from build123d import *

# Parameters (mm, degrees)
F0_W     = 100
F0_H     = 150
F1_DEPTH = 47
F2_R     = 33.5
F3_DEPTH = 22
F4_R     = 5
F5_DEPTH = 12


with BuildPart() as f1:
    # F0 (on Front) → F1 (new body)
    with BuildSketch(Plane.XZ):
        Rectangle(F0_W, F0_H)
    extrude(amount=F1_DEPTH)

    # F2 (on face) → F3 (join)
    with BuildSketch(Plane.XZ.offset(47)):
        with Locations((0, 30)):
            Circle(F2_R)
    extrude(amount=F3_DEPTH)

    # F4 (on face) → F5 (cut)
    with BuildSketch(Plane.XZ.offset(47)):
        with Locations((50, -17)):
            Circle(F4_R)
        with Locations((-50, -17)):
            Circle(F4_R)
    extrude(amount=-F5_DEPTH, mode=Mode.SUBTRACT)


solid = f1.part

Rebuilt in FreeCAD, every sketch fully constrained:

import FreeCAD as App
import Part
import Sketcher
Q = App.Units.Quantity

doc = App.newDocument("Part")
body = doc.addObject("PartDesign::Body", "Body")

sketch1 = doc.addObject("Sketcher::SketchObject", "Sketch")
body.addObject(sketch1)
sketch1.AttachmentSupport = (doc.XZ_Plane, [""])
sketch1.MapMode = "FlatFace"
sketch1.addGeometry(Part.LineSegment(App.Vector(-50, 75, 0), App.Vector(-50, -75, 0)), False)
sketch1.addGeometry(Part.LineSegment(App.Vector(-50, -75, 0), App.Vector(50, -75, 0)), False)
sketch1.addGeometry(Part.LineSegment(App.Vector(50, -75, 0), App.Vector(50, 75, 0)), False)
sketch1.addGeometry(Part.LineSegment(App.Vector(50, 75, 0), App.Vector(-50, 75, 0)), False)
sketch1.addConstraint(Sketcher.Constraint("Coincident", 0, 2, 1, 1))
sketch1.addConstraint(Sketcher.Constraint("Coincident", 1, 2, 2, 1))
sketch1.addConstraint(Sketcher.Constraint("Coincident", 2, 2, 3, 1))
sketch1.addConstraint(Sketcher.Constraint("Coincident", 3, 2, 0, 1))
sketch1.addConstraint(Sketcher.Constraint("Vertical", 0))
sketch1.addConstraint(Sketcher.Constraint("Horizontal", 1))
sketch1.addConstraint(Sketcher.Constraint("Vertical", 2))
sketch1.addConstraint(Sketcher.Constraint("Horizontal", 3))
sketch1.addConstraint(Sketcher.Constraint("Symmetric", 0, 2, 2, 2, -1, 1))
sketch1.addConstraint(Sketcher.Constraint("DistanceX", 1, 1, 1, 2, Q("100 mm")))
sketch1.addConstraint(Sketcher.Constraint("DistanceY", 0, 2, 0, 1, Q("150 mm")))
pad1 = doc.addObject("PartDesign::Pad", "Pad")
body.addObject(pad1)
pad1.Profile = sketch1
pad1.Length = 47

sketch2 = doc.addObject("Sketcher::SketchObject", "Sketch001")
body.addObject(sketch2)
sketch2.AttachmentSupport = (doc.XZ_Plane, [""])
sketch2.MapMode = "FlatFace"
sketch2.AttachmentOffset = App.Placement(App.Vector(0, 0, 47), App.Rotation())
sketch2.addGeometry(Part.Circle(App.Vector(0, 30, 0), App.Vector(0, 0, 1), 34), False)
sketch2.addConstraint(Sketcher.Constraint("PointOnObject", 0, 3, -2))
sketch2.addConstraint(Sketcher.Constraint("Diameter", 0, Q("67 mm")))
sketch2.addConstraint(Sketcher.Constraint("DistanceY", -1, 1, 0, 3, Q("30 mm")))
pad2 = doc.addObject("PartDesign::Pad", "Pad001")
body.addObject(pad2)
pad2.Profile = sketch2
pad2.Length = 22

sketch3 = doc.addObject("Sketcher::SketchObject", "Sketch002")
body.addObject(sketch3)
sketch3.AttachmentSupport = (doc.XZ_Plane, [""])
sketch3.MapMode = "FlatFace"
sketch3.AttachmentOffset = App.Placement(App.Vector(0, 0, 47), App.Rotation())
sketch3.addGeometry(Part.Circle(App.Vector(50, -17, 0), App.Vector(0, 0, 1), 5), False)
sketch3.addGeometry(Part.Circle(App.Vector(-50, -17, 0), App.Vector(0, 0, 1), 5), False)
sketch3.addConstraint(Sketcher.Constraint("Equal", 0, 1))
sketch3.addConstraint(Sketcher.Constraint("Symmetric", 0, 3, 1, 3, -2))
sketch3.addConstraint(Sketcher.Constraint("Diameter", 0, Q("10 mm")))
sketch3.addConstraint(Sketcher.Constraint("DistanceX", -1, 1, 0, 3, Q("50 mm")))
sketch3.addConstraint(Sketcher.Constraint("DistanceY", 0, 3, -1, 1, Q("17 mm")))
pocket1 = doc.addObject("PartDesign::Pocket", "Pocket")
body.addObject(pocket1)
pocket1.Profile = sketch3
pocket1.Length = 12

doc.recompute()
